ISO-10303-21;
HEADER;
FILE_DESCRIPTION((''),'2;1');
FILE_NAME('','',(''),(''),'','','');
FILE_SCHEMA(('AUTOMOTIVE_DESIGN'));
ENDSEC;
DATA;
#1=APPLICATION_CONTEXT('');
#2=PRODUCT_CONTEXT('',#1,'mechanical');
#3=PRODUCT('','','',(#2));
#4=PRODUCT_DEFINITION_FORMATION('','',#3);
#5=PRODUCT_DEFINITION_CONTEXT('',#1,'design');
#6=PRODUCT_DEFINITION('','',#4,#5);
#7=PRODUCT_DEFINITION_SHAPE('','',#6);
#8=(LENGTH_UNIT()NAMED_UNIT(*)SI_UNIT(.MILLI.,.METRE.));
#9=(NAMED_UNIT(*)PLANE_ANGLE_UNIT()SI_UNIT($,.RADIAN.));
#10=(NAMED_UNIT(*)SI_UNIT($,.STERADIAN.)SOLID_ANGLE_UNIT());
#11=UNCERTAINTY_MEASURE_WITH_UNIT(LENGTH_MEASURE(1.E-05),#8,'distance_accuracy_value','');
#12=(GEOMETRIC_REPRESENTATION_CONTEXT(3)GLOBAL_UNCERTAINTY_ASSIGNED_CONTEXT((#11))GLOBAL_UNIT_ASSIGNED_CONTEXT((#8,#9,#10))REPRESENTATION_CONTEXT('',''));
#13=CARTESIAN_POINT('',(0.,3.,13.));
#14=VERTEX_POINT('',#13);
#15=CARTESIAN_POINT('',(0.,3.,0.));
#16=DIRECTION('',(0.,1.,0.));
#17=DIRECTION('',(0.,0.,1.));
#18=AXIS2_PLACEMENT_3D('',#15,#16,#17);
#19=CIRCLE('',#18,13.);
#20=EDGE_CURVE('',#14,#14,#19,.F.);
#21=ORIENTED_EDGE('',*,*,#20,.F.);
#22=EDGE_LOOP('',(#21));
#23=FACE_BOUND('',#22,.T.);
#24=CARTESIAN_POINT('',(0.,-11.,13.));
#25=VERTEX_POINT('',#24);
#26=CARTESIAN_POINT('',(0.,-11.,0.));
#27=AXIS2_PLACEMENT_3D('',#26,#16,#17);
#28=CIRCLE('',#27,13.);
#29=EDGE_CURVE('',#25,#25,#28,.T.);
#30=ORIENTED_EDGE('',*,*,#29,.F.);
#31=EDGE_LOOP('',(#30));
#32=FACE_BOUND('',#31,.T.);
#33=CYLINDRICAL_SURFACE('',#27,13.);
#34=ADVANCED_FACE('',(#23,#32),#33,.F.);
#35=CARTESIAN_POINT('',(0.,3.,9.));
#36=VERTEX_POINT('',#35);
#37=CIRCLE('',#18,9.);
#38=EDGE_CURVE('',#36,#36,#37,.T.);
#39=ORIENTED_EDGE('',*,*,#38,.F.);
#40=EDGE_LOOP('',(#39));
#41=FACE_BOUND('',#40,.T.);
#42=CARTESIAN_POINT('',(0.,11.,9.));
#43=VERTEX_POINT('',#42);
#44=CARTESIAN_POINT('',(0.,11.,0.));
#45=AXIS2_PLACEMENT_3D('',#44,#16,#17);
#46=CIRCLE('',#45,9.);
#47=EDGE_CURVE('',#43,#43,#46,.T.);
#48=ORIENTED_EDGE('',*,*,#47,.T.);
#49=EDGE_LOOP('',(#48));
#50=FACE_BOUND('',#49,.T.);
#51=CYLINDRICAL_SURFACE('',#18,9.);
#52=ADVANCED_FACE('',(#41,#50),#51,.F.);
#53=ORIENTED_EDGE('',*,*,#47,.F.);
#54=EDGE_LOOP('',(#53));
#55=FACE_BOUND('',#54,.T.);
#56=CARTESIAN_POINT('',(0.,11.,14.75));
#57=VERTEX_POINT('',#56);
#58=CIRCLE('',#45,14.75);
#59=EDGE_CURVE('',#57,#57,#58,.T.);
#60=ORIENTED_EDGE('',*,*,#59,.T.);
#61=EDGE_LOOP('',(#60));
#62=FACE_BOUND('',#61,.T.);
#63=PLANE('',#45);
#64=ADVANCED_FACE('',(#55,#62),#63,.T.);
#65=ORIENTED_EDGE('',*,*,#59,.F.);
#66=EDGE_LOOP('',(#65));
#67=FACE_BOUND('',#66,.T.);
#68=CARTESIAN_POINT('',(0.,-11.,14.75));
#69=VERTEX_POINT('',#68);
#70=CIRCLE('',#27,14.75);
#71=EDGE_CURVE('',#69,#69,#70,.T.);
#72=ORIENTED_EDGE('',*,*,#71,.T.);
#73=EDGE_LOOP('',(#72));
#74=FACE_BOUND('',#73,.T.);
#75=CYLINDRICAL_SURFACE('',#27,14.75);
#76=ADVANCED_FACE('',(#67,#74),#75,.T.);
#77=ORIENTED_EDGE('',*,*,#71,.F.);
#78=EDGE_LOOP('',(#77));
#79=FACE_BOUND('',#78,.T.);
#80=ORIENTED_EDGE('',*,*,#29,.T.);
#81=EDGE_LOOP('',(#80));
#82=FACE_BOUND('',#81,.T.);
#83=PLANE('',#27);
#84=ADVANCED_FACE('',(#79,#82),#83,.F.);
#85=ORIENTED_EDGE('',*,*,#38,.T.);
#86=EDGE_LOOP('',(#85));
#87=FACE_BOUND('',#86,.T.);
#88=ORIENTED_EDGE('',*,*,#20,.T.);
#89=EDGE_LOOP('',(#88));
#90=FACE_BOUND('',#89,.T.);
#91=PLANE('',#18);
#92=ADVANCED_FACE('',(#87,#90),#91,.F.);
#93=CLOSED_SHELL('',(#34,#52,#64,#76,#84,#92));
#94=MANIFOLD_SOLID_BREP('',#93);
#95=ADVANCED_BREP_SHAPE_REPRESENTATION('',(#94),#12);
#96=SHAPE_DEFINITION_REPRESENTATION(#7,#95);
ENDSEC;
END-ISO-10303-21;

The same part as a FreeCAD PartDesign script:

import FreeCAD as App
import Part
import Sketcher

V = App.Vector

doc = App.newDocument("Part")
body = doc.addObject("PartDesign::Body", "Body")

# Sketch on XZ plane
sketch1 = body.newObject("Sketcher::SketchObject", "Sketch")
sketch1.AttachmentSupport = (doc.getObject("XZ_Plane"), [""])
sketch1.MapMode = "FlatFace"
sketch1.addGeometry([
    Part.Circle(V(0, 0, 0), V(0, 0, 1), 15),
    Part.Circle(V(0, 0, 0), V(0, 0, 1), 13),
], False)
sketch1.addConstraint([
    Sketcher.Constraint("Coincident", 0, 3, -1, 1),
    Sketcher.Constraint("Coincident", 1, 3, -1, 1),
    Sketcher.Constraint("Diameter", 1, 26.0),
    Sketcher.Constraint("Diameter", 0, 29.5),
])
pad1 = body.newObject("PartDesign::Pad", "Pad")
pad1.Profile = sketch1
pad1.Length = 22
pad1.Midplane = True

# Sketch on XZ plane
sketch2 = body.newObject("Sketcher::SketchObject", "Sketch001")
sketch2.AttachmentSupport = (doc.getObject("XZ_Plane"), [""])
sketch2.MapMode = "FlatFace"
sketch2.AttachmentOffset = App.Placement(V(0, 0, -3), App.Rotation())
sketch2.addGeometry([
    Part.Circle(V(0, 0, 0), V(0, 0, 1), 13),
    Part.Circle(V(0, 0, 0), V(0, 0, 1), 9),
], False)
sketch2.addConstraint([
    Sketcher.Constraint("Coincident", 0, 3, -1, 1),
    Sketcher.Constraint("Coincident", 1, 3, -1, 1),
    Sketcher.Constraint("Diameter", 0, 26.0),
    Sketcher.Constraint("Diameter", 1, 18.0),
])
pad2 = body.newObject("PartDesign::Pad", "Pad001")
pad2.Profile = sketch2
pad2.Length = 8
pad2.Reversed = True

doc.recompute()
